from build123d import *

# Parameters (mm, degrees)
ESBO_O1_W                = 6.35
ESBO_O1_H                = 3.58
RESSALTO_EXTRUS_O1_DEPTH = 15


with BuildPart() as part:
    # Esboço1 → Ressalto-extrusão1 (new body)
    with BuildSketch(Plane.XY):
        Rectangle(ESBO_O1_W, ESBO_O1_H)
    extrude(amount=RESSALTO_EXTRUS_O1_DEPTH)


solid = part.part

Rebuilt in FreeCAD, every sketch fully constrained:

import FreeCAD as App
import Part
import Sketcher
from FreeCAD import Vector

doc = App.newDocument("Part")
body = doc.addObject("PartDesign::Body", "Body")

sketch1 = body.newObject("Sketcher::SketchObject", "Sketch")
sketch1.AttachmentSupport = (doc.getObject("XY_Plane"), [""])
sketch1.MapMode = "FlatFace"
sketch1.addGeometry(Part.LineSegment(Vector(-3.175, 1.79, 0), Vector(-3.175, -1.79, 0)), False)
sketch1.addGeometry(Part.LineSegment(Vector(-3.175, -1.79, 0), Vector(3.175, -1.79, 0)), False)
sketch1.addGeometry(Part.LineSegment(Vector(3.175, -1.79, 0), Vector(3.175, 1.79, 0)), False)
sketch1.addGeometry(Part.LineSegment(Vector(3.175, 1.79, 0), Vector(-3.175, 1.79, 0)), False)
sketch1.addConstraint(Sketcher.Constraint("Coincident", 0, 2, 1, 1))
sketch1.addConstraint(Sketcher.Constraint("Coincident", 1, 2, 2, 1))
sketch1.addConstraint(Sketcher.Constraint("Coincident", 2, 2, 3, 1))
sketch1.addConstraint(Sketcher.Constraint("Coincident", 3, 2, 0, 1))
sketch1.addConstraint(Sketcher.Constraint("Vertical", 0))
sketch1.addConstraint(Sketcher.Constraint("Horizontal", 1))
sketch1.addConstraint(Sketcher.Constraint("Vertical", 2))
sketch1.addConstraint(Sketcher.Constraint("Horizontal", 3))
sketch1.addConstraint(Sketcher.Constraint("Symmetric", 0, 2, 2, 2, -1, 1))
sketch1.addConstraint(Sketcher.Constraint("DistanceX", 1, 1, 1, 2, 6.35))
sketch1.addConstraint(Sketcher.Constraint("DistanceY", 0, 2, 0, 1, 3.58))
pad1 = body.newObject("PartDesign::Pad", "Pad")
pad1.Profile = sketch1
pad1.Length = 15

doc.recompute()
